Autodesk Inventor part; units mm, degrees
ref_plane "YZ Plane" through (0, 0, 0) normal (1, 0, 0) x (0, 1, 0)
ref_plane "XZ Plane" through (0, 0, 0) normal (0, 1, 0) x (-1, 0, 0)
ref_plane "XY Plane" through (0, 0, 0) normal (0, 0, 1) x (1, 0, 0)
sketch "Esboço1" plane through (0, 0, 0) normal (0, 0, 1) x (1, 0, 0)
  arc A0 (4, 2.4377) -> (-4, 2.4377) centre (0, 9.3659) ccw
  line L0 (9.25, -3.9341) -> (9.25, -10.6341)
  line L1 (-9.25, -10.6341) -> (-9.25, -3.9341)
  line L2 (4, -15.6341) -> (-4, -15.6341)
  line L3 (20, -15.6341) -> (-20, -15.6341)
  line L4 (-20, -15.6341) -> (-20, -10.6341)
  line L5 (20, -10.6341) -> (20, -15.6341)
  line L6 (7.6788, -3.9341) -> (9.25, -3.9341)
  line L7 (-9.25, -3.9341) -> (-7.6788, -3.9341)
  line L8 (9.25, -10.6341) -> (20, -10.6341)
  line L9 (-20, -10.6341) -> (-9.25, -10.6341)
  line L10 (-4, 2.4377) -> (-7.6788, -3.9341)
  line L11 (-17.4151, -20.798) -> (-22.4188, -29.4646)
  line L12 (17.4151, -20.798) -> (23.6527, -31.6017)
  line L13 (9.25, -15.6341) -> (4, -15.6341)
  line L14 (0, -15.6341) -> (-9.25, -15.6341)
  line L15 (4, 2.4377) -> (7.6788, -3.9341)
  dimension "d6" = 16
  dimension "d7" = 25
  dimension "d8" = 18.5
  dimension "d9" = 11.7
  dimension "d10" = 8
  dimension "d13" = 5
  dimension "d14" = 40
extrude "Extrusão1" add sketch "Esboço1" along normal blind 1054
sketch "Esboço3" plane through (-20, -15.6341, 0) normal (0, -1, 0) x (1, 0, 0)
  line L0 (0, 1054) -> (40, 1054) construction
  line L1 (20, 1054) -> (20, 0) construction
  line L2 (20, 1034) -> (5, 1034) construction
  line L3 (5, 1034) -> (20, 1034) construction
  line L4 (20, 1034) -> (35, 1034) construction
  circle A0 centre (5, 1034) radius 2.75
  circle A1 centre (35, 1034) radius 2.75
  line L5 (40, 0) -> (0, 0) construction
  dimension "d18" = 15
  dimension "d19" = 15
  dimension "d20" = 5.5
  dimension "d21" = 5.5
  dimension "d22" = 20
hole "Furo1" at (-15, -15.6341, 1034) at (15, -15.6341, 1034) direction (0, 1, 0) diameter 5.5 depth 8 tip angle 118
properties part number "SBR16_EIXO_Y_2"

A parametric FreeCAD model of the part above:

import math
import FreeCAD as App
import Part
import Sketcher

V = App.Vector
Q = App.Units.Quantity

doc = App.newDocument("Part")
body = doc.addObject("PartDesign::Body", "Body")

sketch1 = doc.addObject("Sketcher::SketchObject", "Sketch")
body.addObject(sketch1)
sketch1.AttachmentSupport = (doc.XY_Plane, [""])
sketch1.MapMode = "FlatFace"
sketch1.addGeometry([
    Part.LineSegment(V(7.7, -3.9, 0), V(4, 2.4, 0)),
    Part.ArcOfCircle(Part.Circle(V(0, 9.4, 0), V(0, 0, 1), 8), math.radians(-60), math.radians(240)),
    Part.LineSegment(V(-4, 2.4, 0), V(-7.7, -3.9, 0)),
    Part.LineSegment(V(-7.7, -3.9, 0), V(-9.2, -3.9, 0)),
    Part.LineSegment(V(-9.2, -3.9, 0), V(-9.2, -10.6, 0)),
    Part.LineSegment(V(-9.2, -10.6, 0), V(-20, -10.6, 0)),
    Part.LineSegment(V(-20, -10.6, 0), V(-20, -15.6, 0)),
    Part.LineSegment(V(-20, -15.6, 0), V(20, -15.6, 0)),
    Part.LineSegment(V(20, -15.6, 0), V(20, -10.6, 0)),
    Part.LineSegment(V(20, -10.6, 0), V(9.2, -10.6, 0)),
    Part.LineSegment(V(9.2, -10.6, 0), V(9.2, -3.9, 0)),
    Part.LineSegment(V(9.2, -3.9, 0), V(7.7, -3.9, 0)),
], False)
sketch1.addConstraint([
    Sketcher.Constraint("Coincident", 0, 2, 1, 1),
    Sketcher.Constraint("Coincident", 1, 2, 2, 1),
    Sketcher.Constraint("Coincident", 2, 2, 3, 1),
    Sketcher.Constraint("Coincident", 3, 2, 4, 1),
    Sketcher.Constraint("Coincident", 4, 2, 5, 1),
    Sketcher.Constraint("Coincident", 5, 2, 6, 1),
    Sketcher.Constraint("Coincident", 6, 2, 7, 1),
    Sketcher.Constraint("Coincident", 7, 2, 8, 1),
    Sketcher.Constraint("Coincident", 8, 2, 9, 1),
    Sketcher.Constraint("Coincident", 9, 2, 10, 1),
    Sketcher.Constraint("Coincident", 10, 2, 11, 1),
    Sketcher.Constraint("Coincident", 11, 2, 0, 1),
    Sketcher.Constraint("Horizontal", 3),
    Sketcher.Constraint("Vertical", 4),
    Sketcher.Constraint("Horizontal", 5),
    Sketcher.Constraint("Vertical", 6),
    Sketcher.Constraint("Horizontal", 7),
    Sketcher.Constraint("Vertical", 8),
    Sketcher.Constraint("Horizontal", 9),
    Sketcher.Constraint("Vertical", 10),
    Sketcher.Constraint("Horizontal", 11),
    Sketcher.Constraint("Symmetric", 0, 2, 1, 2, -2),
    Sketcher.Constraint("Symmetric", 5, 2, 8, 2, -2),
    Sketcher.Constraint("Symmetric", 3, 2, 10, 2, -2),
    Sketcher.Constraint("Equal", 3, 11),
    Sketcher.Constraint("Radius", 1, Q("8 mm")),
    Sketcher.Constraint("DistanceX", 7, 1, 7, 2, Q("40 mm")),
    Sketcher.Constraint("DistanceY", 6, 2, 6, 1, Q("5 mm")),
    Sketcher.Constraint("DistanceX", 1, 2, 0, 2, Q("8 mm")),
    Sketcher.Constraint("DistanceY", 6, 2, 3, 2, Q("11.7 mm")),
    Sketcher.Constraint("DistanceX", 4, 2, 9, 2, Q("18.5 mm")),
    Sketcher.Constraint("Angle", 0, Q("120.0003 deg")),
    Sketcher.Constraint("DistanceY", 4, 2, 1, 3, Q("20 mm")),
    Sketcher.Constraint("DistanceY", -1, 1, 1, 3, Q("9.366 mm")),
])
pad1 = doc.addObject("PartDesign::Pad", "Pad")
body.addObject(pad1)
pad1.Profile = sketch1
pad1.Length = 1054

sketch2 = doc.addObject("Sketcher::SketchObject", "Sketch001")
body.addObject(sketch2)
sketch2.AttachmentSupport = (doc.XZ_Plane, [""])
sketch2.MapMode = "FlatFace"
sketch2.AttachmentOffset = App.Placement(V(0, 0, 15.6341), App.Rotation())
sketch2.addGeometry([
    Part.Circle(V(-15, 1034, 0), V(0, 0, 1), 2.8),
    Part.Circle(V(15, 1034, 0), V(0, 0, 1), 2.8),
], False)
sketch2.addConstraint([
    Sketcher.Constraint("Equal", 0, 1),
    Sketcher.Constraint("Symmetric", 0, 3, 1, 3, -2),
    Sketcher.Constraint("Diameter", 0, Q("5.5 mm")),
    Sketcher.Constraint("DistanceX", 0, 3, -1, 1, Q("15 mm")),
    Sketcher.Constraint("DistanceY", -1, 1, 0, 3, Q("1034 mm")),
])
doc.recompute()
hole = doc.addObject("PartDesign::Hole", "Hole")
body.addObject(hole)
hole.Profile = sketch2
hole.ThreadType = "None"
hole.Diameter = 5.5
hole.DepthType = "Dimension"
hole.Depth = 8
hole.DrillPoint = "Angled"
hole.DrillPointAngle = 118

doc.recompute()
